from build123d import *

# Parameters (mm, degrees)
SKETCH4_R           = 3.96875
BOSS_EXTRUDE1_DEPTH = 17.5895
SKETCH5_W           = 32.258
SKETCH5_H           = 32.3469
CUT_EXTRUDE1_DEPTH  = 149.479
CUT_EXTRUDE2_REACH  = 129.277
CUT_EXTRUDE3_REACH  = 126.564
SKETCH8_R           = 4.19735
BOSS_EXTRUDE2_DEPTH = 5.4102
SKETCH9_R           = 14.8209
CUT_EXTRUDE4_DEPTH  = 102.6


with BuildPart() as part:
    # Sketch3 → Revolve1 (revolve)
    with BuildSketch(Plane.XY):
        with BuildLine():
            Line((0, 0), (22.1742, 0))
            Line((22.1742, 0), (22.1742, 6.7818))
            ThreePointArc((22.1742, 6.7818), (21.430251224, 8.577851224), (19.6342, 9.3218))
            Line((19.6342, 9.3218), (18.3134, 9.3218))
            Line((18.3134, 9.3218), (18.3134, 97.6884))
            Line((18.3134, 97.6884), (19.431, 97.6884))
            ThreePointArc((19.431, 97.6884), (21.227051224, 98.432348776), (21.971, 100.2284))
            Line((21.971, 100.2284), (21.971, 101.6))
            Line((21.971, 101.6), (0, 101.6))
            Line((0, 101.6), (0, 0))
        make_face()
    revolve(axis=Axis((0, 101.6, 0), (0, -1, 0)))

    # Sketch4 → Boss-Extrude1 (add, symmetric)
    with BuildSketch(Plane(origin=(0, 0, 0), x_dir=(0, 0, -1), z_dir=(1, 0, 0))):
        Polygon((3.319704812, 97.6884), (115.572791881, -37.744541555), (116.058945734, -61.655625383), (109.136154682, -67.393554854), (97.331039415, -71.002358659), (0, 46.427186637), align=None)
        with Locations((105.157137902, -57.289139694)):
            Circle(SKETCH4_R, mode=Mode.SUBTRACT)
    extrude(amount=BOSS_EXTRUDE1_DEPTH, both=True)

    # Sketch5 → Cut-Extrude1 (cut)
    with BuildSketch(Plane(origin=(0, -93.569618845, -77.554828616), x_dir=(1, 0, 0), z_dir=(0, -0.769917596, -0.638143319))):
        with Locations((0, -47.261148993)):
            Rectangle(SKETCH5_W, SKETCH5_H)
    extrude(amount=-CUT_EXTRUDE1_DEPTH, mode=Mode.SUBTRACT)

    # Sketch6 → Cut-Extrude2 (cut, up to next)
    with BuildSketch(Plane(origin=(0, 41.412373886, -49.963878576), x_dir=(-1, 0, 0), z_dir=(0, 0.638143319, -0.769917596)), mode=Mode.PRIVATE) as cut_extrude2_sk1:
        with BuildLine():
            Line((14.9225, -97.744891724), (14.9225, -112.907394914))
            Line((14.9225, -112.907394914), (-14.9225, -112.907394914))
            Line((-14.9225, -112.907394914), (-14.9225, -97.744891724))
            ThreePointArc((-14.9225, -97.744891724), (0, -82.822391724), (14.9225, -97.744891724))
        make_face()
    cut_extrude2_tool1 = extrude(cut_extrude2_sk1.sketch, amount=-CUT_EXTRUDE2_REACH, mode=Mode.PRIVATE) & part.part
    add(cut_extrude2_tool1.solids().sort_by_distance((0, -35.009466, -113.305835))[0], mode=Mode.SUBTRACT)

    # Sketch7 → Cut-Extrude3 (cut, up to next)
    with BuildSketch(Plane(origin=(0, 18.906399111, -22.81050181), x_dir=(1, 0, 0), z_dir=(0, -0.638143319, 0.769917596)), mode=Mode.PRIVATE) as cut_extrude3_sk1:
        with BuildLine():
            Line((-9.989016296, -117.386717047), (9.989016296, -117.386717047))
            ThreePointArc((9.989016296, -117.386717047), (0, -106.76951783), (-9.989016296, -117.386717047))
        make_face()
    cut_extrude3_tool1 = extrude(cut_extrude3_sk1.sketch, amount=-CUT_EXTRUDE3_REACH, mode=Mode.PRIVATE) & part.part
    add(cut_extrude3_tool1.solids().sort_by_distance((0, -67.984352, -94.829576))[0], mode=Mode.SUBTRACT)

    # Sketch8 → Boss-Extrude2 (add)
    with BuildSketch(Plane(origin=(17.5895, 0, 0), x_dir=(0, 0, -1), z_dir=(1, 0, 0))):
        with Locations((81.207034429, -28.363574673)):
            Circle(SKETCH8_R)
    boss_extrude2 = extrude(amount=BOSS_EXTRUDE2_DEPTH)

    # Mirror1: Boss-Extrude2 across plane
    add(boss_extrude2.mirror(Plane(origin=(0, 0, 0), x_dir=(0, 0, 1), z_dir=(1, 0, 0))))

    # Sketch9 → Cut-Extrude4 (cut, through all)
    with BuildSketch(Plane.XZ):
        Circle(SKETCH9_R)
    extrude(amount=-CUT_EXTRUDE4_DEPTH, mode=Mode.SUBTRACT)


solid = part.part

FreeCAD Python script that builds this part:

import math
import FreeCAD as App
import Part
import Sketcher
from FreeCAD import Vector
Q = App.Units.Quantity


def add_polygon(sketch, points):
    """Adds a closed chain of lines whose ends are joined by coincident constraints."""
    first, n = sketch.GeometryCount, len(points)
    for a, b in zip(points, points[1:] + points[:1]):
        sketch.addGeometry(Part.LineSegment(App.Vector(*a, 0), App.Vector(*b, 0)), False)
    for i in range(n):
        sketch.addConstraint(Sketcher.Constraint("Coincident", first + i, 2, first + (i + 1) % n, 1))

doc = App.newDocument("Part")
params = doc.addObject("Spreadsheet::Sheet", "Params")
for row, (alias, value) in enumerate([
    ("sketch1_radius", "0.1 in"),
    ("sketch1_height", "4 in"),
    ("sketch1_width", "0.873 in"),
    ("sketch1_width2", "0.052 in"),
    ("sketch1_width3", "0.044 in"),
    ("revolution_angle", "360 deg"),
    ("sketch2_diameter", "0.3125 in"),
    ("sketch2_length", "0.486 in"),
    ("sketch2_length2", "0.354 in"),
    ("pad1_length", "1.385 in"),
    ("sketch3_width", "1.27 in"),
    ("pocket1_length", "5.885 in"),
    ("sketch5_radius", "0.394 in"),
    ("pad2_length", "0.213 in"),
    ("sketch7_diameter", "1.167 in"),
], start=1):
    params.set(f"A{row}", alias)
    params.set(f"B{row}", "=" + value)
    params.setAlias(f"B{row}", alias)

body = doc.addObject("PartDesign::Body", "Body")

# Sketch on XY plane
sketch1 = doc.addObject("Sketcher::SketchObject", "Sketch")
body.addObject(sketch1)
sketch1.AttachmentSupport = (doc.XY_Plane, [""])
sketch1.MapMode = "FlatFace"
sketch1.addGeometry(Part.LineSegment(Vector(0, 0, 0), Vector(22.2, 0, 0)), False)
sketch1.addGeometry(Part.LineSegment(Vector(22.2, 0, 0), Vector(22.2, 6.8, 0)), False)
sketch1.addGeometry(Part.ArcOfCircle(Part.Circle(Vector(19.6, 6.8, 0), Vector(0, 0, 1), 2.5), math.radians(0), math.radians(90)), False)
sketch1.addGeometry(Part.LineSegment(Vector(19.6, 9.3, 0), Vector(18.3, 9.3, 0)), False)
sketch1.addGeometry(Part.LineSegment(Vector(18.3, 9.3, 0), Vector(18.3, 97.7, 0)), False)
sketch1.addGeometry(Part.LineSegment(Vector(18.3, 97.7, 0), Vector(19.4, 97.7, 0)), False)
sketch1.addGeometry(Part.ArcOfCircle(Part.Circle(Vector(19.4, 100.2, 0), Vector(0, 0, 1), 2.5), math.radians(-90), math.radians(0)), False)
sketch1.addGeometry(Part.LineSegment(Vector(22, 100.2, 0), Vector(22, 101.6, 0)), False)
sketch1.addGeometry(Part.LineSegment(Vector(22, 101.6, 0), Vector(0, 101.6, 0)), False)
sketch1.addGeometry(Part.LineSegment(Vector(0, 101.6, 0), Vector(0, 0, 0)), False)
sketch1.addConstraint(Sketcher.Constraint("Coincident", 0, 2, 1, 1))
sketch1.addConstraint(Sketcher.Constraint("Tangent", 1, 2, 2, 1))
sketch1.addConstraint(Sketcher.Constraint("Tangent", 2, 2, 3, 1))
sketch1.addConstraint(Sketcher.Constraint("Coincident", 3, 2, 4, 1))
sketch1.addConstraint(Sketcher.Constraint("Coincident", 4, 2, 5, 1))
sketch1.addConstraint(Sketcher.Constraint("Tangent", 5, 2, 6, 1))
sketch1.addConstraint(Sketcher.Constraint("Tangent", 6, 2, 7, 1))
sketch1.addConstraint(Sketcher.Constraint("Coincident", 7, 2, 8, 1))
sketch1.addConstraint(Sketcher.Constraint("Coincident", 8, 2, 9, 1))
sketch1.addConstraint(Sketcher.Constraint("Coincident", 9, 2, 0, 1))
sketch1.addConstraint(Sketcher.Constraint("Horizontal", 0))
sketch1.addConstraint(Sketcher.Constraint("Vertical", 1))
sketch1.addConstraint(Sketcher.Constraint("Horizontal", 3))
sketch1.addConstraint(Sketcher.Constraint("Vertical", 4))
sketch1.addConstraint(Sketcher.Constraint("Horizontal", 5))
sketch1.addConstraint(Sketcher.Constraint("Vertical", 7))
sketch1.addConstraint(Sketcher.Constraint("Horizontal", 8))
sketch1.addConstraint(Sketcher.Constraint("Vertical", 9))
sketch1.addConstraint(Sketcher.Constraint("Coincident", 9, 2, -1, 1))
sketch1.addConstraint(Sketcher.Constraint("Equal", 2, 6))
sketch1.addConstraint(Sketcher.Constraint("Radius", 2, Q("0.1 in")))
sketch1.addConstraint(Sketcher.Constraint("DistanceY", 9, 2, 9, 1, Q("4 in")))
sketch1.addConstraint(Sketcher.Constraint("DistanceX", 0, 1, 0, 2, Q("0.873 in")))
sketch1.addConstraint(Sketcher.Constraint("DistanceX", 3, 2, 3, 1, Q("0.052 in")))
sketch1.addConstraint(Sketcher.Constraint("DistanceX", 5, 1, 5, 2, Q("0.044 in")))
sketch1.addConstraint(Sketcher.Constraint("DistanceY", 1, 1, 1, 2, Q("0.267 in")))
sketch1.addConstraint(Sketcher.Constraint("DistanceY", 4, 1, 4, 2, Q("3.479 in")))
sketch1.setExpression("Constraints[20]", "Params.sketch1_radius")
sketch1.setExpression("Constraints[21]", "Params.sketch1_height")
sketch1.setExpression("Constraints[22]", "Params.sketch1_width")
sketch1.setExpression("Constraints[23]", "Params.sketch1_width2")
sketch1.setExpression("Constraints[24]", "Params.sketch1_width3")
revolution = doc.addObject("PartDesign::Revolution", "Revolution")
body.addObject(revolution)
revolution.Profile = sketch1
revolution.ReferenceAxis = (sketch1, ["V_Axis"])
revolution.setExpression("Angle", "Params.revolution_angle")

# Sketch on YZ plane
sketch2 = doc.addObject("Sketcher::SketchObject", "Sketch001")
body.addObject(sketch2)
sketch2.AttachmentSupport = (doc.YZ_Plane, [""])
sketch2.MapMode = "FlatFace"
add_polygon(sketch2, [(-37.7, -115.6), (97.7, -3.3), (46.4, 0), (-71, -97.3), (-67.4, -109.1), (-61.7, -116.1)])  # lines 0-5
sketch2.addGeometry(Part.Circle(Vector(-57.3, -105.2, 0), Vector(0, 0, 1), 4), False)  # 6
sketch2.addConstraint(Sketcher.Constraint("PointOnObject", 1, 2, -1))
sketch2.addConstraint(Sketcher.Constraint("Parallel", 0, 2))
sketch2.addConstraint(Sketcher.Constraint("Perpendicular", 2, 4))
sketch2.addConstraint(Sketcher.Constraint("Diameter", 6, Q("0.3125 in")))
sketch2.addConstraint(Sketcher.Constraint("Distance", 3, Q("0.486 in")))
sketch2.addConstraint(Sketcher.Constraint("Distance", 4, Q("0.354 in")))
sketch2.addConstraint(Sketcher.Constraint("DistanceX", -1, 1, 0, 2, Q("3.846 in")))
sketch2.addConstraint(Sketcher.Constraint("DistanceY", 6, 3, 2, 2, Q("7.826098 mm")))
sketch2.addConstraint(Sketcher.Constraint("DistanceX", 6, 3, 5, 2, Q("19.544598 mm")))
sketch2.addConstraint(Sketcher.Constraint("DistanceX", 6, 3, -1, 1, Q("57.28914 mm")))
sketch2.addConstraint(Sketcher.Constraint("DistanceX", 2, 2, -1, 1, Q("71.002359 mm")))
sketch2.addConstraint(Sketcher.Constraint("DistanceY", 2, 2, -1, 1, Q("97.331039 mm")))
sketch2.addConstraint(Sketcher.Constraint("DistanceY", 5, 2, -1, 1, Q("115.572792 mm")))
sketch2.addConstraint(Sketcher.Constraint("DistanceX", 3, 2, 1, 2, Q("113.820741 mm")))
sketch2.addConstraint(Sketcher.Constraint("DistanceY", 3, 2, 0, 2, Q("105.81645 mm")))
sketch2.setExpression("Constraints[9]", "Params.sketch2_diameter")
sketch2.setExpression("Constraints[10]", "Params.sketch2_length")
sketch2.setExpression("Constraints[11]", "Params.sketch2_length2")
pad1 = doc.addObject("PartDesign::Pad", "Pad")
body.addObject(pad1)
pad1.Profile = sketch2
pad1.setExpression("Length", "Params.pad1_length")
pad1.Midplane = True

# Sketch on an angled plane
sketch3 = doc.addObject("Sketcher::SketchObject", "Sketch002")
body.addObject(sketch3)
sketch3.Placement = App.Placement(Vector(0, -93.569619, -77.554829), App.Rotation(Vector(1, 0, 0), Vector(0, -0.638143319, 0.769917596), Vector(0, -0.769917596, -0.638143319), "ZXY"))
add_polygon(sketch3, [(-16, -31), (-16, -63), (16, -63), (16, -31)])  # lines 0-3
sketch3.addConstraint(Sketcher.Constraint("Vertical", 0))
sketch3.addConstraint(Sketcher.Constraint("Horizontal", 1))
sketch3.addConstraint(Sketcher.Constraint("Vertical", 2))
sketch3.addConstraint(Sketcher.Constraint("Horizontal", 3))
sketch3.addConstraint(Sketcher.Constraint("DistanceX", 1, 1, 1, 2, Q("1.27 in")))
sketch3.addConstraint(Sketcher.Constraint("DistanceY", 0, 2, 0, 1, Q("1.2735 in")))
sketch3.addConstraint(Sketcher.Constraint("DistanceX", 0, 2, -1, 1, Q("0.635 in")))
sketch3.addConstraint(Sketcher.Constraint("DistanceY", 0, 2, -1, 1, Q("63.434599 mm")))
sketch3.setExpression("Constraints[8]", "Params.sketch3_width")
pocket1 = doc.addObject("PartDesign::Pocket", "Pocket")
body.addObject(pocket1)
pocket1.Profile = sketch3
pocket1.setExpression("Length", "Params.pocket1_length")

# Sketch on an angled plane
sketch4 = doc.addObject("Sketcher::SketchObject", "Sketch003")
body.addObject(sketch4)
sketch4.Placement = App.Placement(Vector(0, 41.412374, -49.963879), App.Rotation(Vector(-1, 0, 0), Vector(0, 0.769917596, 0.638143319), Vector(0, 0.638143319, -0.769917596), "ZXY"))
sketch4.addGeometry(Part.LineSegment(Vector(15, -113, 0), Vector(15, -98, 0)), False)
sketch4.addGeometry(Part.ArcOfCircle(Part.Circle(Vector(0, -98, 0), Vector(0, 0, 1), 15), math.radians(0), math.radians(180)), False)
sketch4.addGeometry(Part.LineSegment(Vector(-15, -98, 0), Vector(-15, -113, 0)), False)
sketch4.addGeometry(Part.LineSegment(Vector(-15, -113, 0), Vector(15, -113, 0)), False)
sketch4.addConstraint(Sketcher.Constraint("Tangent", 0, 2, 1, 1))
sketch4.addConstraint(Sketcher.Constraint("Tangent", 1, 2, 2, 1))
sketch4.addConstraint(Sketcher.Constraint("Coincident", 2, 2, 3, 1))
sketch4.addConstraint(Sketcher.Constraint("Coincident", 3, 2, 0, 1))
sketch4.addConstraint(Sketcher.Constraint("Vertical", 0))
sketch4.addConstraint(Sketcher.Constraint("Vertical", 2))
sketch4.addConstraint(Sketcher.Constraint("Horizontal", 3))
sketch4.addConstraint(Sketcher.Constraint("PointOnObject", 1, 3, -2))
sketch4.addConstraint(Sketcher.Constraint("Radius", 1, Q("0.5875 in")))
sketch4.addConstraint(Sketcher.Constraint("DistanceY", 0, 1, 0, 2, Q("15.162503 mm")))
sketch4.addConstraint(Sketcher.Constraint("DistanceY", 1, 3, -1, 1, Q("97.744892 mm")))
pocket2 = doc.addObject("PartDesign::Pocket", "Pocket001")
body.addObject(pocket2)
pocket2.Profile = sketch4
pocket2.Type = "UpToFirst"

# Sketch on an angled plane
sketch5 = doc.addObject("Sketcher::SketchObject", "Sketch004")
body.addObject(sketch5)
sketch5.Placement = App.Placement(Vector(0, 18.906399, -22.810502), App.Rotation(Vector(1, 0, 0), Vector(0, 0.769917596, 0.638143319), Vector(0, -0.638143319, 0.769917596), "ZXY"))
sketch5.addGeometry(Part.LineSegment(Vector(-10, -117, 0), Vector(10, -117, 0)), False)
sketch5.addGeometry(Part.ArcOfCircle(Part.Circle(Vector(0, -117, 0), Vector(0, 0, 1), 10), math.radians(-3), math.radians(183)), False)
sketch5.addConstraint(Sketcher.Constraint("Coincident", 0, 1, 1, 2))
sketch5.addConstraint(Sketcher.Constraint("Coincident", 1, 1, 0, 2))
sketch5.addConstraint(Sketcher.Constraint("Horizontal", 0))
sketch5.addConstraint(Sketcher.Constraint("PointOnObject", 1, 3, -2))
sketch5.addConstraint(Sketcher.Constraint("Radius", 1, Q("0.394 in")))
sketch5.addConstraint(Sketcher.Constraint("DistanceY", 0, 1, 1, 3, Q("0.024 in")))
sketch5.addConstraint(Sketcher.Constraint("DistanceY", 1, 3, -1, 1, Q("116.777118 mm")))
sketch5.setExpression("Constraints[4]", "Params.sketch5_radius")
pocket3 = doc.addObject("PartDesign::Pocket", "Pocket002")
body.addObject(pocket3)
pocket3.Profile = sketch5
pocket3.Type = "UpToFirst"

# Sketch on YZ plane
sketch6 = doc.addObject("Sketcher::SketchObject", "Sketch005")
body.addObject(sketch6)
sketch6.AttachmentSupport = (doc.YZ_Plane, [""])
sketch6.MapMode = "FlatFace"
sketch6.AttachmentOffset = App.Placement(Vector(0, 0, 0.6925 * 25.4), App.Rotation())
sketch6.addGeometry(Part.Circle(Vector(-28.4, -81.2, 0), Vector(0, 0, 1), 4.2), False)
sketch6.addConstraint(Sketcher.Constraint("Diameter", 0, Q("0.3305 in")))
sketch6.addConstraint(Sketcher.Constraint("DistanceX", 0, 3, -1, 1, Q("28.363575 mm")))
sketch6.addConstraint(Sketcher.Constraint("DistanceY", 0, 3, -1, 1, Q("81.207034 mm")))
pad2 = doc.addObject("PartDesign::Pad", "Pad001")
body.addObject(pad2)
pad2.Profile = sketch6
pad2.setExpression("Length", "Params.pad2_length")
doc.recompute()

mirrored = doc.addObject("PartDesign::Mirrored", "Mirrored")
body.addObject(mirrored)
mirrored.Originals = [pad2]
mirrored.MirrorPlane = (doc.YZ_Plane, [""])
body.Tip = mirrored

# Sketch on XZ plane
sketch7 = doc.addObject("Sketcher::SketchObject", "Sketch006")
body.addObject(sketch7)
sketch7.AttachmentSupport = (doc.XZ_Plane, [""])
sketch7.MapMode = "FlatFace"
sketch7.addGeometry(Part.Circle(Vector(0, 0, 0), Vector(0, 0, 1), 15), False)
sketch7.addConstraint(Sketcher.Constraint("Coincident", 0, 3, -1, 1))
sketch7.addConstraint(Sketcher.Constraint("Diameter", 0, Q("1.167 in")))
sketch7.setExpression("Constraints[1]", "Params.sketch7_diameter")
pocket4 = doc.addObject("PartDesign::Pocket", "Pocket003")
body.addObject(pocket4)
pocket4.Profile = sketch7
pocket4.Type = "ThroughAll"

doc.recompute()
